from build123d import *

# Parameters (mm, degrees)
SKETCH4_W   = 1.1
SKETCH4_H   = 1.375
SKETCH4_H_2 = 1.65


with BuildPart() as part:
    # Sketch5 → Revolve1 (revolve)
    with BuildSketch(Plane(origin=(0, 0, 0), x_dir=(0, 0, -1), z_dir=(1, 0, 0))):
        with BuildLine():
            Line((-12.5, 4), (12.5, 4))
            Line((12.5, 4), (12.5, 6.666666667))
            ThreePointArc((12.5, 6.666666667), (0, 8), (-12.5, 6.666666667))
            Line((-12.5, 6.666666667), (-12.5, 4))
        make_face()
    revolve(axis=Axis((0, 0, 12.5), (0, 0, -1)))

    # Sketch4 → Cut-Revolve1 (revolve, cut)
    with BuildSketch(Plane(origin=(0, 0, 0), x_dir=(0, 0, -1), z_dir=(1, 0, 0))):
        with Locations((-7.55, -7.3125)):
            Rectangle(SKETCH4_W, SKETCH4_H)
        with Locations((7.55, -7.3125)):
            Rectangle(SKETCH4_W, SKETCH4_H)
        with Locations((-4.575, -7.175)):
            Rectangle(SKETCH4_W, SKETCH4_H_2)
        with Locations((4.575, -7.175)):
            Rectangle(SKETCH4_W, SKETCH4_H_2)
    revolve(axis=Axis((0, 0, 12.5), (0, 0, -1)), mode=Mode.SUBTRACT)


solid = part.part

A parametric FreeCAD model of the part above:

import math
import FreeCAD as App
import Part
import Sketcher

V = App.Vector
Q = App.Units.Quantity


def add_polygon(sketch, points):
    """Adds a closed chain of lines whose ends are joined by coincident constraints."""
    first, n = sketch.GeometryCount, len(points)
    for a, b in zip(points, points[1:] + points[:1]):
        sketch.addGeometry(Part.LineSegment(App.Vector(*a, 0), App.Vector(*b, 0)), False)
    for i in range(n):
        sketch.addConstraint(Sketcher.Constraint("Coincident", first + i, 2, first + (i + 1) % n, 1))

doc = App.newDocument("Part")
body = doc.addObject("PartDesign::Body", "Body")

# Sketch on YZ plane
sketch1 = body.newObject("Sketcher::SketchObject", "Sketch")
sketch1.AttachmentSupport = (doc.getObject("YZ_Plane"), [""])
sketch1.MapMode = "FlatFace"
sketch1.addGeometry(Part.LineSegment(V(4, 12.5, 0), V(4, -12.5, 0)), False)
sketch1.addGeometry(Part.LineSegment(V(4, -12.5, 0), V(6.7, -12.5, 0)), False)
sketch1.addGeometry(Part.ArcOfCircle(Part.Circle(V(-51.3, 0, 0), V(0, 0, 1), 59.3), math.radians(-12), math.radians(12)), False)
sketch1.addGeometry(Part.LineSegment(V(6.7, 12.5, 0), V(4, 12.5, 0)), False)
sketch1.addConstraint(Sketcher.Constraint("Coincident", 0, 2, 1, 1))
sketch1.addConstraint(Sketcher.Constraint("Coincident", 1, 2, 2, 1))
sketch1.addConstraint(Sketcher.Constraint("Coincident", 2, 2, 3, 1))
sketch1.addConstraint(Sketcher.Constraint("Coincident", 3, 2, 0, 1))
sketch1.addConstraint(Sketcher.Constraint("Vertical", 0))
sketch1.addConstraint(Sketcher.Constraint("Horizontal", 1))
sketch1.addConstraint(Sketcher.Constraint("Horizontal", 3))
sketch1.addConstraint(Sketcher.Constraint("Symmetric", 1, 2, 2, 2, -1))
sketch1.addConstraint(Sketcher.Constraint("DistanceY", 0, 2, 0, 1, Q("25 mm")))
sketch1.addConstraint(Sketcher.Constraint("DistanceX", -1, 1, 0, 2, Q("4 mm")))
sketch1.addConstraint(Sketcher.Constraint("Radius", 2, Q("59.260417 mm")))
sketch1.addConstraint(Sketcher.Constraint("DistanceX", 1, 1, 1, 2, Q("2.666667 mm")))
revolution = body.newObject("PartDesign::Revolution", "Revolution")
revolution.Profile = sketch1
revolution.ReferenceAxis = (sketch1, ["V_Axis"])
revolution.Angle = 360

# Sketch on YZ plane
sketch2 = body.newObject("Sketcher::SketchObject", "Sketch001")
sketch2.AttachmentSupport = (doc.getObject("YZ_Plane"), [""])
sketch2.MapMode = "FlatFace"
add_polygon(sketch2, [(-6.6, 8.1), (-8, 8.1), (-8, 7), (-6.6, 7)])  # lines 0-3
add_polygon(sketch2, [(-6.6, -7), (-8, -7), (-8, -8.1), (-6.6, -8.1)])  # lines 4-7
add_polygon(sketch2, [(-6.3, 5.1), (-8, 5.1), (-8, 4), (-6.3, 4)])  # lines 8-11
add_polygon(sketch2, [(-6.3, -4), (-8, -4), (-8, -5.1), (-6.3, -5.1)])  # lines 12-15
sketch2.addConstraint(Sketcher.Constraint("Horizontal", 0))
sketch2.addConstraint(Sketcher.Constraint("Vertical", 1))
sketch2.addConstraint(Sketcher.Constraint("Horizontal", 2))
sketch2.addConstraint(Sketcher.Constraint("Vertical", 3))
sketch2.addConstraint(Sketcher.Constraint("Horizontal", 4))
sketch2.addConstraint(Sketcher.Constraint("Vertical", 5))
sketch2.addConstraint(Sketcher.Constraint("Horizontal", 6))
sketch2.addConstraint(Sketcher.Constraint("Vertical", 7))
sketch2.addConstraint(Sketcher.Constraint("Horizontal", 8))
sketch2.addConstraint(Sketcher.Constraint("Vertical", 9))
sketch2.addConstraint(Sketcher.Constraint("Horizontal", 10))
sketch2.addConstraint(Sketcher.Constraint("Vertical", 11))
sketch2.addConstraint(Sketcher.Constraint("Horizontal", 12))
sketch2.addConstraint(Sketcher.Constraint("Vertical", 13))
sketch2.addConstraint(Sketcher.Constraint("Horizontal", 14))
sketch2.addConstraint(Sketcher.Constraint("Vertical", 15))
sketch2.addConstraint(Sketcher.Constraint("Symmetric", 1, 2, 4, 2, -1))
sketch2.addConstraint(Sketcher.Constraint("Symmetric", 3, 2, 6, 2, -1))
sketch2.addConstraint(Sketcher.Constraint("Symmetric", 9, 2, 12, 2, -1))
sketch2.addConstraint(Sketcher.Constraint("Symmetric", 11, 2, 14, 2, -1))
sketch2.addConstraint(Sketcher.Constraint("Vertical", 5, 2, 8, 2))
sketch2.addConstraint(Sketcher.Constraint("Equal", 7, 9))
sketch2.addConstraint(Sketcher.Constraint("DistanceY", 1, 2, 1, 1, Q("1.1 mm")))
sketch2.addConstraint(Sketcher.Constraint("DistanceX", 0, 2, -1, 1, Q("8 mm")))
sketch2.addConstraint(Sketcher.Constraint("DistanceY", -1, 1, 1, 2, Q("7 mm")))
sketch2.addConstraint(Sketcher.Constraint("DistanceX", 8, 2, 8, 1, Q("1.65 mm")))
sketch2.addConstraint(Sketcher.Constraint("DistanceX", 0, 2, 0, 1, Q("1.375 mm")))
sketch2.addConstraint(Sketcher.Constraint("DistanceY", 12, 2, 9, 2, Q("8.05 mm")))
groove = body.newObject("PartDesign::Groove", "Groove")
groove.Profile = sketch2
groove.ReferenceAxis = (sketch2, ["V_Axis"])
groove.Angle = 360

doc.recompute()
